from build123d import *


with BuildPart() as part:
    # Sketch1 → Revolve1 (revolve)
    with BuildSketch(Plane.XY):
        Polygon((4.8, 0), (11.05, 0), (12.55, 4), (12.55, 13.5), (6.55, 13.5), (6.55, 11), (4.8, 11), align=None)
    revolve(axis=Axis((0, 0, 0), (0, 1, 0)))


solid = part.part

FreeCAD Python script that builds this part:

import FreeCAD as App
import Part
import Sketcher
Q = App.Units.Quantity


def add_polygon(sketch, points):
    """Adds a closed chain of lines whose ends are joined by coincident constraints."""
    first, n = sketch.GeometryCount, len(points)
    for a, b in zip(points, points[1:] + points[:1]):
        sketch.addGeometry(Part.LineSegment(App.Vector(*a, 0), App.Vector(*b, 0)), False)
    for i in range(n):
        sketch.addConstraint(Sketcher.Constraint("Coincident", first + i, 2, first + (i + 1) % n, 1))

doc = App.newDocument("Part")
params = doc.addObject("Spreadsheet::Sheet", "Params")
for row, (alias, value) in enumerate([
    ("sketch1_width", "6 mm"),
    ("sketch1_height", "11 mm"),
    ("sketch1_height2", "9.5 mm"),
    ("sketch1_height3", "2.5 mm"),
    ("sketch1_width2", "6.25 mm"),
    ("revolution_angle", "360 deg"),
], start=1):
    params.set(f"A{row}", alias)
    params.set(f"B{row}", "=" + value)
    params.setAlias(f"B{row}", alias)

body = doc.addObject("PartDesign::Body", "Body")

# Sketch on XY plane
sketch1 = body.newObject("Sketcher::SketchObject", "Sketch")
sketch1.AttachmentSupport = (doc.getObject("XY_Plane"), [""])
sketch1.MapMode = "FlatFace"
add_polygon(sketch1, [(4.8, 0), (11.1, 0), (12.6, 4), (12.6, 13.5), (6.5, 13.5), (6.5, 11), (4.8, 11)])  # lines 0-6
sketch1.addConstraint([
    Sketcher.Constraint("Horizontal", 0),
    Sketcher.Constraint("Vertical", 2),
    Sketcher.Constraint("Horizontal", 3),
    Sketcher.Constraint("Vertical", 4),
    Sketcher.Constraint("Horizontal", 5),
    Sketcher.Constraint("Vertical", 6),
    Sketcher.Constraint("PointOnObject", 0, 2, -1),
    Sketcher.Constraint("DistanceX", 3, 2, 3, 1, Q("6 mm")),
    Sketcher.Constraint("DistanceY", 6, 2, 6, 1, Q("11 mm")),
    Sketcher.Constraint("DistanceY", 2, 1, 2, 2, Q("9.5 mm")),
    Sketcher.Constraint("DistanceY", 4, 2, 4, 1, Q("2.5 mm")),
    Sketcher.Constraint("DistanceX", 0, 1, 0, 2, Q("6.25 mm")),
    Sketcher.Constraint("DistanceX", 5, 2, 5, 1, Q("1.75 mm")),
    Sketcher.Constraint("DistanceX", -1, 1, 5, 2, Q("4.8 mm")),
])
sketch1.setExpression("Constraints[14]", "Params.sketch1_width")
sketch1.setExpression("Constraints[15]", "Params.sketch1_height")
sketch1.setExpression("Constraints[16]", "Params.sketch1_height2")
sketch1.setExpression("Constraints[17]", "Params.sketch1_height3")
sketch1.setExpression("Constraints[18]", "Params.sketch1_width2")
revolution = body.newObject("PartDesign::Revolution", "Revolution")
revolution.Profile = sketch1
revolution.ReferenceAxis = (sketch1, ["V_Axis"])
revolution.setExpression("Angle", "Params.revolution_angle")

doc.recompute()
